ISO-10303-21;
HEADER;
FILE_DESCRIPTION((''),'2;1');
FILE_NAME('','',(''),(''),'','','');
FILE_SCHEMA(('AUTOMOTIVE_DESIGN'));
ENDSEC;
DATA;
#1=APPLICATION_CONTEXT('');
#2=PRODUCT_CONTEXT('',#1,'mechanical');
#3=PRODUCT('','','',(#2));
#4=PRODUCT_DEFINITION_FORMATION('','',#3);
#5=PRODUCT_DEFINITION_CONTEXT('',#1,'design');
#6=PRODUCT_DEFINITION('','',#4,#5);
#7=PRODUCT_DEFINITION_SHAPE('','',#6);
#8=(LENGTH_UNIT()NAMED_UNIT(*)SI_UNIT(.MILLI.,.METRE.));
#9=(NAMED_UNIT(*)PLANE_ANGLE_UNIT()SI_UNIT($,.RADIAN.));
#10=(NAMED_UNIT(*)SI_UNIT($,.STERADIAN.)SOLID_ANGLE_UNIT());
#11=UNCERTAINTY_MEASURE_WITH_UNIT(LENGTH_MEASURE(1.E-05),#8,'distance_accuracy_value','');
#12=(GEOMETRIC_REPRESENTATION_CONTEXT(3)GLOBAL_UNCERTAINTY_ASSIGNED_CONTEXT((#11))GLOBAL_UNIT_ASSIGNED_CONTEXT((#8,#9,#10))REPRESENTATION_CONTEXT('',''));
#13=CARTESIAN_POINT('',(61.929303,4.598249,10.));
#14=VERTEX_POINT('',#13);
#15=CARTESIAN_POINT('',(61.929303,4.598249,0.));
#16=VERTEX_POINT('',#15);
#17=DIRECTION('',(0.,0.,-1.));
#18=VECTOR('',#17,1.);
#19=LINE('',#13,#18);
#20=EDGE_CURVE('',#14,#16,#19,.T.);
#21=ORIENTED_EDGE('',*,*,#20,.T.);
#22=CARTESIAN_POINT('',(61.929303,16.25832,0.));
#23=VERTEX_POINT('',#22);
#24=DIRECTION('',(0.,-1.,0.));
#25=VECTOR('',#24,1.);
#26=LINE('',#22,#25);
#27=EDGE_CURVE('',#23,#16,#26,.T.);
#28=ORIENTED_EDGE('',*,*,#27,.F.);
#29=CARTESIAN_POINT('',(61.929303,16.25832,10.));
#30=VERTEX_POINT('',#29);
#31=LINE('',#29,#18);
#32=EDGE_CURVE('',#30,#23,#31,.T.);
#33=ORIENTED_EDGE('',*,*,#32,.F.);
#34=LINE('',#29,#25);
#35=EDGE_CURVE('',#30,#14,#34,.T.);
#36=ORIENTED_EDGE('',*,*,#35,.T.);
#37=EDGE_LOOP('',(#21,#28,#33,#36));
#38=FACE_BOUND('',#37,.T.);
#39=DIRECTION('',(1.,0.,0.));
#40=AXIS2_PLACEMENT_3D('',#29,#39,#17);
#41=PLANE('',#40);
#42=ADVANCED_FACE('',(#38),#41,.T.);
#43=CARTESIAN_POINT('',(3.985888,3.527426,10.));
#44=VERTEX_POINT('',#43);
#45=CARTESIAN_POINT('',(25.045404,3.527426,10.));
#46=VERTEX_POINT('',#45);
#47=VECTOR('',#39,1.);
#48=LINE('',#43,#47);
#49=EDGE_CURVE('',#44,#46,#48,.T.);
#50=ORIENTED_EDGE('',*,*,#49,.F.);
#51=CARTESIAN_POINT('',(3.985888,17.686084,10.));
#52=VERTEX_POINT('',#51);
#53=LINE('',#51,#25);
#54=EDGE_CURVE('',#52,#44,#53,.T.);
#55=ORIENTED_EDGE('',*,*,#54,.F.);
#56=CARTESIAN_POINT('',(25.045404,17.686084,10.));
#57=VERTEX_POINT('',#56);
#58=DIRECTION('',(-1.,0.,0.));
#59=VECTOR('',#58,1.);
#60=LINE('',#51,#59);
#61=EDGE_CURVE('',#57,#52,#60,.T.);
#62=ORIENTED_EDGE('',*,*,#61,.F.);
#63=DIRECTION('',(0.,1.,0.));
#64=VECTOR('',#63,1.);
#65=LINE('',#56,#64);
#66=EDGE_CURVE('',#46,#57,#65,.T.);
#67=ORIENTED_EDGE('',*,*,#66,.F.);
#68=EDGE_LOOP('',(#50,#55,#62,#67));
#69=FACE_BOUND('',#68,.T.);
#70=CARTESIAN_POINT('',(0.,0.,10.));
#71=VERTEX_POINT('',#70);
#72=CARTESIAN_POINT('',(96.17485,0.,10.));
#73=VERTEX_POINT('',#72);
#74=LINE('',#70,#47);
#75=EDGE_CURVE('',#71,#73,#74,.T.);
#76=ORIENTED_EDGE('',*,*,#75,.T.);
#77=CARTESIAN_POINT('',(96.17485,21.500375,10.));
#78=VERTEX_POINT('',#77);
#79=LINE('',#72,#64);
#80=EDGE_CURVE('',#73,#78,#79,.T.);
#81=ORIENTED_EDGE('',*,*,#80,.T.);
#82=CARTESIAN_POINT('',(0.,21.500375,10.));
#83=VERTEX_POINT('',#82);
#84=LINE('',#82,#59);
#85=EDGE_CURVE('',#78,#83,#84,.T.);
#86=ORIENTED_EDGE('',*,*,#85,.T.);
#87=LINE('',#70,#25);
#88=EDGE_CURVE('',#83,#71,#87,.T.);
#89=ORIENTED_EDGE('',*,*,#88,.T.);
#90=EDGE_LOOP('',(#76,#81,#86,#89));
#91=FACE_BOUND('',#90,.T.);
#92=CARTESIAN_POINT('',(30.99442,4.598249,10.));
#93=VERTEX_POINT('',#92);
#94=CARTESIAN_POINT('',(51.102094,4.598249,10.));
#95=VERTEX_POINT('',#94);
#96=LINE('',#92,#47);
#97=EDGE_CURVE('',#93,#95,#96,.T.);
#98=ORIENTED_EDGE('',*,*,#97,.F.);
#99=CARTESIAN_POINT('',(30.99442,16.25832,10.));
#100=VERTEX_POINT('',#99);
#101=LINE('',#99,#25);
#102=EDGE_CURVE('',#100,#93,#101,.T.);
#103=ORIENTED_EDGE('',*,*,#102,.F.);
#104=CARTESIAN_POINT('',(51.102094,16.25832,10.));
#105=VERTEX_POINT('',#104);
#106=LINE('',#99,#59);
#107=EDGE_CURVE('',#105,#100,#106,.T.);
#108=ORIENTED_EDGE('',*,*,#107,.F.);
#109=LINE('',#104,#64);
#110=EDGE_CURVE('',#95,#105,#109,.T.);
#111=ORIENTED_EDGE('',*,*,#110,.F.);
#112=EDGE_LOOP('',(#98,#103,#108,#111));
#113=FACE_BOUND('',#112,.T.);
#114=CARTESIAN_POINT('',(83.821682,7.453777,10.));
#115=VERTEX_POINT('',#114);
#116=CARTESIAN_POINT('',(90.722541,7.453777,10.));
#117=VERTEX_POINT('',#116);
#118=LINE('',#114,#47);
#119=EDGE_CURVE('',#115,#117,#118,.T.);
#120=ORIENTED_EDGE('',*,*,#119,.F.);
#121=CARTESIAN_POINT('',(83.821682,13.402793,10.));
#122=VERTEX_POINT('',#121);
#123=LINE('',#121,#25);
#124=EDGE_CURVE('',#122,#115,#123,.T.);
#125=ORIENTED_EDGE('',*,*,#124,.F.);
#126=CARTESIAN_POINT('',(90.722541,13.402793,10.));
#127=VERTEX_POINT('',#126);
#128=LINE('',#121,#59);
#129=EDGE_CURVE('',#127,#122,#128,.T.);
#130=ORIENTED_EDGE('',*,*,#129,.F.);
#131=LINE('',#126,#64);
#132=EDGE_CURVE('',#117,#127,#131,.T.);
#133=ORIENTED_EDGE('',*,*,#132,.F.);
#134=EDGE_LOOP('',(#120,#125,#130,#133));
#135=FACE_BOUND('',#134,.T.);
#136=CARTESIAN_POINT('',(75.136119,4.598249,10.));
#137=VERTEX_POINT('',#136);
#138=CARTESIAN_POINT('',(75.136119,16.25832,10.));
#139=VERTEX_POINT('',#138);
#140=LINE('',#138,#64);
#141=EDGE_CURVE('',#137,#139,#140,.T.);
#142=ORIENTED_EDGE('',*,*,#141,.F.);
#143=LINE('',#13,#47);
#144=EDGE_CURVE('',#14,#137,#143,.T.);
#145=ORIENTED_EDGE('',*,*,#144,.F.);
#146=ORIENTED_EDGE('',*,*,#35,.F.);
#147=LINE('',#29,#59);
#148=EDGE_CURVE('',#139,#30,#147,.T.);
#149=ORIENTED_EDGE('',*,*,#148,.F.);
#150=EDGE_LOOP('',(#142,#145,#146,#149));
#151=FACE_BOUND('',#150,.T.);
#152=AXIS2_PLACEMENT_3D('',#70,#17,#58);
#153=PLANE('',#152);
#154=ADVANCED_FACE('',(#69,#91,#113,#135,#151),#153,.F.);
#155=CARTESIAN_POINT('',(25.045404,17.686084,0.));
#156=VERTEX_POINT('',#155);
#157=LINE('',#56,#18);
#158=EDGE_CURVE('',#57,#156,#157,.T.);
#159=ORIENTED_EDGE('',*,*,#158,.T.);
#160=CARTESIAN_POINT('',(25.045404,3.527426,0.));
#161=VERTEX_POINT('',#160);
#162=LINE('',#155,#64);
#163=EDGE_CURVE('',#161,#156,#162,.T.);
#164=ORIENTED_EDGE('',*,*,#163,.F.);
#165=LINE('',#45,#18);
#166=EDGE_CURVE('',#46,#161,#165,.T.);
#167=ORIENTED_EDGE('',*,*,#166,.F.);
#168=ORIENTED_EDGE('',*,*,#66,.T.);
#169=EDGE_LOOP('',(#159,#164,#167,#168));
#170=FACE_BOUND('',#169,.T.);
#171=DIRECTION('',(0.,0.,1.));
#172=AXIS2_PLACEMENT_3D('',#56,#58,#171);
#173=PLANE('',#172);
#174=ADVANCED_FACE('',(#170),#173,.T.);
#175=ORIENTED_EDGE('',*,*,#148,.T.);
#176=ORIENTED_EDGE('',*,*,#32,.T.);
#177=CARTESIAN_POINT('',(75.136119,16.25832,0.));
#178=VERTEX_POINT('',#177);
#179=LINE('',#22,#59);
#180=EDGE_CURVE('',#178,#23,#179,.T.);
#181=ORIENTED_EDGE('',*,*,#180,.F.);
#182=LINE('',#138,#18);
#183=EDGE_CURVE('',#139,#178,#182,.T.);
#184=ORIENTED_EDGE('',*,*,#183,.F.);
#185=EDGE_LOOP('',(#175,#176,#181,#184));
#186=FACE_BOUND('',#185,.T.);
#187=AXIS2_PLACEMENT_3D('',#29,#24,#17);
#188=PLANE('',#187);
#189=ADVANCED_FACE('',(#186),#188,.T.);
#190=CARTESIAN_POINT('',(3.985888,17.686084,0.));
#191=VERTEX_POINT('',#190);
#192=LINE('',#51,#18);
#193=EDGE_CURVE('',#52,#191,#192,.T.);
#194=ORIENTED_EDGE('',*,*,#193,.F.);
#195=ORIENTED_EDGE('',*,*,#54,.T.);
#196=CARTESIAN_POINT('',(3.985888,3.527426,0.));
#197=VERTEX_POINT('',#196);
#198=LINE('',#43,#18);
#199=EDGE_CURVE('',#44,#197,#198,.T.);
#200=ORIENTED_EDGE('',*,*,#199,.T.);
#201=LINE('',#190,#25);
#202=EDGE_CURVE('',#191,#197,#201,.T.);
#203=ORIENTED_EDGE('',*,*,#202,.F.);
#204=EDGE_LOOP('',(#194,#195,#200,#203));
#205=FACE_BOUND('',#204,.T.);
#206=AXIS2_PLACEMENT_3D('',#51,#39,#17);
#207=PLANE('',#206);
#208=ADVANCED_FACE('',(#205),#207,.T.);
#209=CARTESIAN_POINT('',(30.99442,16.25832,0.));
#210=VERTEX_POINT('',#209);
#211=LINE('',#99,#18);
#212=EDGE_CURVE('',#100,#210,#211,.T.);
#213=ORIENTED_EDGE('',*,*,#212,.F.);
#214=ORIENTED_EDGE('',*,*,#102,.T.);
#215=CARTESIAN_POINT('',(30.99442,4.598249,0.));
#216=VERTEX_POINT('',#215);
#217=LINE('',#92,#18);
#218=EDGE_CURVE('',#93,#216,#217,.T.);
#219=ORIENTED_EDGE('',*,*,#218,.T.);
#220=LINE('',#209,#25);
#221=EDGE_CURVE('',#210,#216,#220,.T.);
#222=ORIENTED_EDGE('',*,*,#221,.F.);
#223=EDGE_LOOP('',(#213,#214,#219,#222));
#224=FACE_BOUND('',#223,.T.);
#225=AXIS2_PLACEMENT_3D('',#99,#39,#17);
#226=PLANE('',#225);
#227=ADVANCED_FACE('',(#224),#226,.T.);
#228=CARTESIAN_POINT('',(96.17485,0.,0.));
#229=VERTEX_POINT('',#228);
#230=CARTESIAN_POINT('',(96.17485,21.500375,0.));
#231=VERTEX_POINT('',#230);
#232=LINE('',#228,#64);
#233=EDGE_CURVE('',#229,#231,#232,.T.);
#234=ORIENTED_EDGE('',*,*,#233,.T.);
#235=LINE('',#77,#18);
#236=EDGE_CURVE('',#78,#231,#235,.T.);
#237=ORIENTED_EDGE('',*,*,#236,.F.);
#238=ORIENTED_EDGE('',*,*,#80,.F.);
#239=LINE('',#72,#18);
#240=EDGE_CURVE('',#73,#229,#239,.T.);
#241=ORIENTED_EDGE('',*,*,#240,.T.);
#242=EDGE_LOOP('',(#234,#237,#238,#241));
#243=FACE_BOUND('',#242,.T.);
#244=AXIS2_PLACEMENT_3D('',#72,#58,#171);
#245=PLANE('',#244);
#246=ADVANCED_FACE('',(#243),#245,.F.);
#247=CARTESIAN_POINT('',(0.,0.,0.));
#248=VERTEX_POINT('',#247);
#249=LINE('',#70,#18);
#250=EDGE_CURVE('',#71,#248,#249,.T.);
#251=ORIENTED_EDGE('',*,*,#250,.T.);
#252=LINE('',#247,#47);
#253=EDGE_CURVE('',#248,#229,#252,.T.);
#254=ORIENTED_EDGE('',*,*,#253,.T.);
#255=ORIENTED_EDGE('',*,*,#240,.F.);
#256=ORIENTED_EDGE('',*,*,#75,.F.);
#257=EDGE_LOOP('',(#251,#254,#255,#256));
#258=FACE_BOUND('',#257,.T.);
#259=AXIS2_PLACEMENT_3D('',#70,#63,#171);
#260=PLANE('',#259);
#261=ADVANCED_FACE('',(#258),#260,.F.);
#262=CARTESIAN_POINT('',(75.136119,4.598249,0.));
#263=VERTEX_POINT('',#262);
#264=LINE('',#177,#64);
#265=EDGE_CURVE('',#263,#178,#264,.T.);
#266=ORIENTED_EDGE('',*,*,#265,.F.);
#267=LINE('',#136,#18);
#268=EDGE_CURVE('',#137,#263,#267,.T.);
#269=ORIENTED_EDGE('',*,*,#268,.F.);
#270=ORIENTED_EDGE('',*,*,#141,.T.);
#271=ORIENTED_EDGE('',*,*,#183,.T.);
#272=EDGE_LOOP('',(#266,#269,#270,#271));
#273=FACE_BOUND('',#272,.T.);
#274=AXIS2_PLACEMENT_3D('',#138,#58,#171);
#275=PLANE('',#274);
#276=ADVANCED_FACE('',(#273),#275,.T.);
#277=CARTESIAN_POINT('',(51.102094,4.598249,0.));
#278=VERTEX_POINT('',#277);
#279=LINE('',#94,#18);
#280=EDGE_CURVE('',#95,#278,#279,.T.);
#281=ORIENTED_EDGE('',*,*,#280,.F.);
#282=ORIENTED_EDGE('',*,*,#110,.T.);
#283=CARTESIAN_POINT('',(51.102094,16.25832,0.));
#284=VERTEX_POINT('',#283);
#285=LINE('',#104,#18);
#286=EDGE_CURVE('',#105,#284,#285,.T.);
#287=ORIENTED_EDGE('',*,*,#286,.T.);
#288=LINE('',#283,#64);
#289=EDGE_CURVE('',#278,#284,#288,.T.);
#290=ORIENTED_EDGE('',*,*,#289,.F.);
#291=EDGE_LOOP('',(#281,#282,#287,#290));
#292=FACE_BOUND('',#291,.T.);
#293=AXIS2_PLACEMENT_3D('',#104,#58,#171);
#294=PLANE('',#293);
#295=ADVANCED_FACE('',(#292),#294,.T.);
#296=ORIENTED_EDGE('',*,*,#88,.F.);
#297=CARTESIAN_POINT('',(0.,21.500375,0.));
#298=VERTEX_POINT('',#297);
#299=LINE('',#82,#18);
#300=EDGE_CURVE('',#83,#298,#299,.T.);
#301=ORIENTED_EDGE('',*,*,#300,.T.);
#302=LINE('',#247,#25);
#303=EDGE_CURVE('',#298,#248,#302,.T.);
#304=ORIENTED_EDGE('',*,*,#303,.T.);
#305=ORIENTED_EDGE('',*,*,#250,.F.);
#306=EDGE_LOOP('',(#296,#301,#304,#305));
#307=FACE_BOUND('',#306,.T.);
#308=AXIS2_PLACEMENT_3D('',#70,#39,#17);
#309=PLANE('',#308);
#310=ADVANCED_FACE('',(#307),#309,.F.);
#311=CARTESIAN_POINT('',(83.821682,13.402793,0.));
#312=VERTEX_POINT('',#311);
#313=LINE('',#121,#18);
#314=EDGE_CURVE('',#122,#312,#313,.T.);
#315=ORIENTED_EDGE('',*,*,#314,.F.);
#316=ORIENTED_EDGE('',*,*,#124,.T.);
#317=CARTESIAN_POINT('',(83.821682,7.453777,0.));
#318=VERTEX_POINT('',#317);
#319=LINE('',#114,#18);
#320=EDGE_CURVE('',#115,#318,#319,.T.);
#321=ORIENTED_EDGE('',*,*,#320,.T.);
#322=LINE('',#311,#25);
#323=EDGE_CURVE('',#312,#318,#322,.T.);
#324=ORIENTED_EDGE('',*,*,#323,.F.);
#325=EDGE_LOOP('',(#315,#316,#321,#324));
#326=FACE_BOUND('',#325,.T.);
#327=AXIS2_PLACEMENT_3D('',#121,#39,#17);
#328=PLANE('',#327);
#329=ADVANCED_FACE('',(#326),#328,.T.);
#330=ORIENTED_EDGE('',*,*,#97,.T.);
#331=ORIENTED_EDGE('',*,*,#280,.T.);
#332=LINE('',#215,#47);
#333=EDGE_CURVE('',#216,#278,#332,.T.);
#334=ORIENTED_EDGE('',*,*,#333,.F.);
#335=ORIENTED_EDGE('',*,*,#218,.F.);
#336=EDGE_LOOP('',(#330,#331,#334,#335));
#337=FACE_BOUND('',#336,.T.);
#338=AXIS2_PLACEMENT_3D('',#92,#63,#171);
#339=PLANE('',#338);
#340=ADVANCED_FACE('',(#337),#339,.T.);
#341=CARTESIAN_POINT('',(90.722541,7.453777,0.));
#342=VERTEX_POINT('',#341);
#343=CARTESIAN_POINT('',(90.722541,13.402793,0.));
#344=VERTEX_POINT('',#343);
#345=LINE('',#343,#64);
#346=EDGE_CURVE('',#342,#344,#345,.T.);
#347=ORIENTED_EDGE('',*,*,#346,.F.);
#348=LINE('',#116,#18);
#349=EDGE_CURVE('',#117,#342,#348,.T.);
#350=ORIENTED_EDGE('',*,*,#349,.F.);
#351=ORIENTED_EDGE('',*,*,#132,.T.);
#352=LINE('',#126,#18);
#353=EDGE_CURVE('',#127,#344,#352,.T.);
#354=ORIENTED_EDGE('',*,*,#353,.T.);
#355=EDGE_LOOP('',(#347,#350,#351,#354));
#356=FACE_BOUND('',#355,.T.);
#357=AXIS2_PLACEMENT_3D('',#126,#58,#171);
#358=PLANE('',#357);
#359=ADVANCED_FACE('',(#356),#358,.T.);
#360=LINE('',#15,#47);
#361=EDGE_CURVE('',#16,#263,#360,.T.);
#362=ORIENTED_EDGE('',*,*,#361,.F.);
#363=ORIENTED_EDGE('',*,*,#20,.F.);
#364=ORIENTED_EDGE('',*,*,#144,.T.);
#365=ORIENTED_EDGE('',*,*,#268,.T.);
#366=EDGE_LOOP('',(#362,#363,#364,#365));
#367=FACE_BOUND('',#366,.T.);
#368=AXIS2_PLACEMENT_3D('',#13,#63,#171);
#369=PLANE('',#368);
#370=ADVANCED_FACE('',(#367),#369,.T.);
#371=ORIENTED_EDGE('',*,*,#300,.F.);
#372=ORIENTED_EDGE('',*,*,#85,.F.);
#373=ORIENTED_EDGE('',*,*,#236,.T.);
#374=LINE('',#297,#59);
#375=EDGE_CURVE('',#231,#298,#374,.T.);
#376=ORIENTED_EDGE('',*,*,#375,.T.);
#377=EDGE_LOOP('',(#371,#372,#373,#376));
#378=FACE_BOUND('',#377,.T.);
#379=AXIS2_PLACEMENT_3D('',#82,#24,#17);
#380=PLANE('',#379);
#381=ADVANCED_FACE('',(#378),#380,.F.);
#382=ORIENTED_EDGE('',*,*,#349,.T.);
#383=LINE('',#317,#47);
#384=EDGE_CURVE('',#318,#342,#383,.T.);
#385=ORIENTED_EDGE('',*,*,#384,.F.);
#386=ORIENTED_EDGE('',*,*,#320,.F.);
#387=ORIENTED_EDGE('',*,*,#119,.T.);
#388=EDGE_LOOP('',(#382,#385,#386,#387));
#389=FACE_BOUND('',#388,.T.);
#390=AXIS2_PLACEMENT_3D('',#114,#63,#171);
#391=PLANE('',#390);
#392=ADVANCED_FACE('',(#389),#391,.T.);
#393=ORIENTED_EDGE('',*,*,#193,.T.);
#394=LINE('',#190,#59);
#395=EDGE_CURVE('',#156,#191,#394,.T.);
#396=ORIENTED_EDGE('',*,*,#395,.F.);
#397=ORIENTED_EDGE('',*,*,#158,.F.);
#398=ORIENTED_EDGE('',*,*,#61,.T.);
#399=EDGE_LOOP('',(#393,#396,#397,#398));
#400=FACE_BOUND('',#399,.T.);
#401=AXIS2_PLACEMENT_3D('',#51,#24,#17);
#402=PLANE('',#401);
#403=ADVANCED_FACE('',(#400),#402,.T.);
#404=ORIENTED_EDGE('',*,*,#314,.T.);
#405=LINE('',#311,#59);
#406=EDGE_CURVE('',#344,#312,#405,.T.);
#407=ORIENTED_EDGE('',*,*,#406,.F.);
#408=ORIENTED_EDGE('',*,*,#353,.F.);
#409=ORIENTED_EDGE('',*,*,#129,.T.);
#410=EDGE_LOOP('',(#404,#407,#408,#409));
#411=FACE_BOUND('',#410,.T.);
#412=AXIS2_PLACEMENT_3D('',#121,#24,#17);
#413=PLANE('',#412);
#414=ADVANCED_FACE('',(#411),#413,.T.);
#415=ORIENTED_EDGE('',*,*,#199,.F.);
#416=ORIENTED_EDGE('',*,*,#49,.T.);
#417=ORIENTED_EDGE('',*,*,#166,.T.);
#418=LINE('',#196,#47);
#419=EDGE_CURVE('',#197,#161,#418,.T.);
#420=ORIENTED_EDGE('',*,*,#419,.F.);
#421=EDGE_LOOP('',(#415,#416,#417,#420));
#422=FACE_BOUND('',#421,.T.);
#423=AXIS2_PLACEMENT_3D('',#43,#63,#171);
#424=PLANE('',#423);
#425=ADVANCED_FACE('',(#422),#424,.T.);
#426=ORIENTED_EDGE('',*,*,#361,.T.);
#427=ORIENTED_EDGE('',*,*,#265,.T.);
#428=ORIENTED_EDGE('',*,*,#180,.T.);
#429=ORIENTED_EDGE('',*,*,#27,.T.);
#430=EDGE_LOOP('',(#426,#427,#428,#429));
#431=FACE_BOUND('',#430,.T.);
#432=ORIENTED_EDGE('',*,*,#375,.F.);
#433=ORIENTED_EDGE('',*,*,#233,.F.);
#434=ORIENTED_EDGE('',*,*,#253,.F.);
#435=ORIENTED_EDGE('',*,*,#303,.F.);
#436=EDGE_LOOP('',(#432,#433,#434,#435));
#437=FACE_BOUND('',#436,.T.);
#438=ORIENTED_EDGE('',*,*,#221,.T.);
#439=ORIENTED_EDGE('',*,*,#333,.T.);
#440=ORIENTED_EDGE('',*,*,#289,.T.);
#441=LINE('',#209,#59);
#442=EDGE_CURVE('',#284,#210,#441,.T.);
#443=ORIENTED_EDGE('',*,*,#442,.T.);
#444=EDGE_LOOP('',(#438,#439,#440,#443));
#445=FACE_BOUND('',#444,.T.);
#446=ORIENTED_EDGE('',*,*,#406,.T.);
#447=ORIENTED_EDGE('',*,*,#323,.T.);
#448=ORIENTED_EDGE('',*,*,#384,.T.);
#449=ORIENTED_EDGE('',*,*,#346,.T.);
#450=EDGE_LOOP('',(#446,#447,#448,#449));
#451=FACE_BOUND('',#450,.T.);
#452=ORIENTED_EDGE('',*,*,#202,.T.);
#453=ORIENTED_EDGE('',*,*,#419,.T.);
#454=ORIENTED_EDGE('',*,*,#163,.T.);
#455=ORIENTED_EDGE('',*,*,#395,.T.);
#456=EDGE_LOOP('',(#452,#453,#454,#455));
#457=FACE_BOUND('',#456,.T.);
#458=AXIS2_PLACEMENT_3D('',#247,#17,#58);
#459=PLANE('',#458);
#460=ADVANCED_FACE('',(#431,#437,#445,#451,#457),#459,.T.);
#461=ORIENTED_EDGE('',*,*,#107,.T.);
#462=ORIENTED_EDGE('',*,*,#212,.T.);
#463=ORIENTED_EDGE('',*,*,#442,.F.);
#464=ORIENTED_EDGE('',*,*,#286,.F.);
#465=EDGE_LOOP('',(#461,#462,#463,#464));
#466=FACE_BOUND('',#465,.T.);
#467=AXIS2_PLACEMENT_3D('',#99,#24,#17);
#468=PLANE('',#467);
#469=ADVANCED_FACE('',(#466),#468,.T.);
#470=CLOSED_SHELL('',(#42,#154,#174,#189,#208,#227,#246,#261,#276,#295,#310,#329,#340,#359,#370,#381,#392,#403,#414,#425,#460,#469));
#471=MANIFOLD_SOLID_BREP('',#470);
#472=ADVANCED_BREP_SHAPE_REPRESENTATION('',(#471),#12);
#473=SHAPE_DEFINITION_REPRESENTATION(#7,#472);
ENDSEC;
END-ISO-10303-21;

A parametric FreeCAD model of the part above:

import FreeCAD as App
import Part
import Sketcher

V = App.Vector


def add_polygon(sketch, points):
    """Adds a closed chain of lines whose ends are joined by coincident constraints."""
    first, n = sketch.GeometryCount, len(points)
    for a, b in zip(points, points[1:] + points[:1]):
        sketch.addGeometry(Part.LineSegment(App.Vector(*a, 0), App.Vector(*b, 0)), False)
    for i in range(n):
        sketch.addConstraint(Sketcher.Constraint("Coincident", first + i, 2, first + (i + 1) % n, 1))

doc = App.newDocument("Part")
body = doc.addObject("PartDesign::Body", "Body")

sketch1 = body.newObject("Sketcher::SketchObject", "Sketch")
sketch1.AttachmentSupport = (doc.getObject("XY_Plane"), [""])
sketch1.MapMode = "FlatFace"
add_polygon(sketch1, [(0, 21.500375), (0, 0), (96.17485, 0), (96.17485, 21.500375)])
add_polygon(sketch1, [(25.045404, 3.527426), (3.985888, 3.527426), (3.985888, 17.686084), (25.045404, 17.686084)])
add_polygon(sketch1, [(51.102094, 4.598249), (30.99442, 4.598249), (30.99442, 16.25832), (51.102094, 16.25832)])
add_polygon(sketch1, [(75.136119, 4.598249), (61.929303, 4.598249), (61.929303, 16.25832), (75.136119, 16.25832)])
add_polygon(sketch1, [(90.722541, 7.453777), (83.821682, 7.453777), (83.821682, 13.402793), (90.722541, 13.402793)])
sketch1.addConstraint(Sketcher.Constraint("Vertical", 0))
sketch1.addConstraint(Sketcher.Constraint("Horizontal", 1))
sketch1.addConstraint(Sketcher.Constraint("Vertical", 2))
sketch1.addConstraint(Sketcher.Constraint("Horizontal", 3))
sketch1.addConstraint(Sketcher.Constraint("Horizontal", 4))
sketch1.addConstraint(Sketcher.Constraint("Vertical", 5))
sketch1.addConstraint(Sketcher.Constraint("Horizontal", 6))
sketch1.addConstraint(Sketcher.Constraint("Vertical", 7))
sketch1.addConstraint(Sketcher.Constraint("Horizontal", 8))
sketch1.addConstraint(Sketcher.Constraint("Vertical", 9))
sketch1.addConstraint(Sketcher.Constraint("Horizontal", 10))
sketch1.addConstraint(Sketcher.Constraint("Vertical", 11))
sketch1.addConstraint(Sketcher.Constraint("Horizontal", 12))
sketch1.addConstraint(Sketcher.Constraint("Vertical", 13))
sketch1.addConstraint(Sketcher.Constraint("Horizontal", 14))
sketch1.addConstraint(Sketcher.Constraint("Vertical", 15))
sketch1.addConstraint(Sketcher.Constraint("Horizontal", 16))
sketch1.addConstraint(Sketcher.Constraint("Vertical", 17))
sketch1.addConstraint(Sketcher.Constraint("Horizontal", 18))
sketch1.addConstraint(Sketcher.Constraint("Vertical", 19))
sketch1.addConstraint(Sketcher.Constraint("Coincident", 0, 2, -1, 1))
sketch1.addConstraint(Sketcher.Constraint("Horizontal", 11, 2, 12, 2))
sketch1.addConstraint(Sketcher.Constraint("Horizontal", 10, 2, 13, 2))
sketch1.addConstraint(Sketcher.Constraint("DistanceX", 1, 1, 1, 2, 96.17485))
sketch1.addConstraint(Sketcher.Constraint("DistanceX", 16, 2, 16, 1, 6.900859))
sketch1.addConstraint(Sketcher.Constraint("DistanceY", 5, 1, 5, 2, 14.158658))
sketch1.addConstraint(Sketcher.Constraint("DistanceY", 9, 1, 9, 2, 11.660071))
sketch1.addConstraint(Sketcher.Constraint("DistanceY", 16, 2, 2, 2, 14.046599))
sketch1.addConstraint(Sketcher.Constraint("DistanceX", 4, 2, 4, 1, 21.059517))
sketch1.addConstraint(Sketcher.Constraint("DistanceX", 8, 2, 8, 1, 20.107674))
sketch1.addConstraint(Sketcher.Constraint("DistanceX", 12, 2, 12, 1, 13.206815))
sketch1.addConstraint(Sketcher.Constraint("DistanceY", 0, 2, 0, 1, 21.500375))
sketch1.addConstraint(Sketcher.Constraint("DistanceY", 17, 1, 17, 2, 5.949016))
sketch1.addConstraint(Sketcher.Constraint("DistanceX", -1, 1, 8, 2, 30.99442))
sketch1.addConstraint(Sketcher.Constraint("DistanceY", -1, 1, 8, 2, 4.598249))
sketch1.addConstraint(Sketcher.Constraint("DistanceX", -1, 1, 14, 2, 75.136119))
sketch1.addConstraint(Sketcher.Constraint("DistanceX", -1, 1, 18, 2, 90.722541))
sketch1.addConstraint(Sketcher.Constraint("DistanceY", 4, 2, 3, 2, 17.972949))
sketch1.addConstraint(Sketcher.Constraint("DistanceX", 4, 2, 1, 2, 92.188962))
pad1 = body.newObject("PartDesign::Pad", "Pad")
pad1.Profile = sketch1
pad1.Length = 10

doc.recompute()
